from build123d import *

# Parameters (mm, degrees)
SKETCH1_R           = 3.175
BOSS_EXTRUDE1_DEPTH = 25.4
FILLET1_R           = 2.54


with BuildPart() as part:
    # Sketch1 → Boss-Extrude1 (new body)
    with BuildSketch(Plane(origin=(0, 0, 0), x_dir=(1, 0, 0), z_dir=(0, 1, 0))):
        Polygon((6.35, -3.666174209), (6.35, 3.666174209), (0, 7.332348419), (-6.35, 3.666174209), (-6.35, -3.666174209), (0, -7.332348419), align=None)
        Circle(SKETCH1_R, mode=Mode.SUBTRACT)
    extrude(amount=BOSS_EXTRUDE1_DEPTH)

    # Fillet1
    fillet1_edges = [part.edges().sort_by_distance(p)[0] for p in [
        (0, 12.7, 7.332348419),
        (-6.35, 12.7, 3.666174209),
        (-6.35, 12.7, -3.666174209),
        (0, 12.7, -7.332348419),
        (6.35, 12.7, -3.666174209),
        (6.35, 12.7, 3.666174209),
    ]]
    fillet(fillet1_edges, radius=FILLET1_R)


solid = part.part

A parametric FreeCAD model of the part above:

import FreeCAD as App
import Part
import Sketcher
from FreeCAD import Vector
Q = App.Units.Quantity


def edges_at(feature, points):
    """Names of the edges that pass closest to the given points."""
    edges = feature.Shape.Edges
    near = lambda p: min(range(len(edges)), key=lambda i: edges[i].distToShape(Part.Vertex(*p))[0])
    return sorted({f"Edge{near(p) + 1}" for p in points})


def add_polygon(sketch, points):
    """Adds a closed chain of lines whose ends are joined by coincident constraints."""
    first, n = sketch.GeometryCount, len(points)
    for a, b in zip(points, points[1:] + points[:1]):
        sketch.addGeometry(Part.LineSegment(App.Vector(*a, 0), App.Vector(*b, 0)), False)
    for i in range(n):
        sketch.addConstraint(Sketcher.Constraint("Coincident", first + i, 2, first + (i + 1) % n, 1))

doc = App.newDocument("Part")
body = doc.addObject("PartDesign::Body", "Body")

sketch1 = body.newObject("Sketcher::SketchObject", "Sketch")
sketch1.AttachmentSupport = (doc.getObject("XZ_Plane"), [""])
sketch1.MapMode = "FlatFace"
add_polygon(sketch1, [(6.35, 3.666174), (6.35, -3.666174), (0, -7.332348), (-6.35, -3.666174), (-6.35, 3.666174), (0, 7.332348)])
sketch1.addGeometry(Part.Circle(Vector(0, 0, 0), Vector(0, 0, 1), 3.175), False)
sketch1.addConstraint(Sketcher.Constraint("Vertical", 0))
sketch1.addConstraint(Sketcher.Constraint("Vertical", 3))
sketch1.addConstraint(Sketcher.Constraint("Coincident", 6, 3, -1, 1))
sketch1.addConstraint(Sketcher.Constraint("Symmetric", 0, 2, 3, 2, -1, 1))
sketch1.addConstraint(Sketcher.Constraint("Symmetric", 1, 2, 4, 2, -1, 1))
sketch1.addConstraint(Sketcher.Constraint("PointOnObject", 1, 2, -2))
sketch1.addConstraint(Sketcher.Constraint("Parallel", 2, 5))
sketch1.addConstraint(Sketcher.Constraint("Horizontal", 0, 2, 2, 2))
sketch1.addConstraint(Sketcher.Constraint("Diameter", 6, Q("0.25 in")))
sketch1.addConstraint(Sketcher.Constraint("Angle", 1, Q("-150 deg")))
sketch1.addConstraint(Sketcher.Constraint("DistanceX", 2, 2, 0, 2, Q("0.5 in")))
sketch1.addConstraint(Sketcher.Constraint("DistanceY", 0, 2, 0, 1, Q("7.332348 mm")))
pad1 = body.newObject("PartDesign::Pad", "Pad")
pad1.Profile = sketch1
pad1.Length = Q("1 in")
pad1.Reversed = True
doc.recompute()

fillet = body.newObject("PartDesign::Fillet", "Fillet")
fillet.Base = (pad1, edges_at(pad1, [
    (0, 12.7, 7.332),
    (-6.35, 12.7, 3.666),
    (-6.35, 12.7, -3.666),
    (0, 12.7, -7.332),
    (6.35, 12.7, -3.666),
    (6.35, 12.7, 3.666),
]))
fillet.Radius = Q("0.1 in")

doc.recompute()
